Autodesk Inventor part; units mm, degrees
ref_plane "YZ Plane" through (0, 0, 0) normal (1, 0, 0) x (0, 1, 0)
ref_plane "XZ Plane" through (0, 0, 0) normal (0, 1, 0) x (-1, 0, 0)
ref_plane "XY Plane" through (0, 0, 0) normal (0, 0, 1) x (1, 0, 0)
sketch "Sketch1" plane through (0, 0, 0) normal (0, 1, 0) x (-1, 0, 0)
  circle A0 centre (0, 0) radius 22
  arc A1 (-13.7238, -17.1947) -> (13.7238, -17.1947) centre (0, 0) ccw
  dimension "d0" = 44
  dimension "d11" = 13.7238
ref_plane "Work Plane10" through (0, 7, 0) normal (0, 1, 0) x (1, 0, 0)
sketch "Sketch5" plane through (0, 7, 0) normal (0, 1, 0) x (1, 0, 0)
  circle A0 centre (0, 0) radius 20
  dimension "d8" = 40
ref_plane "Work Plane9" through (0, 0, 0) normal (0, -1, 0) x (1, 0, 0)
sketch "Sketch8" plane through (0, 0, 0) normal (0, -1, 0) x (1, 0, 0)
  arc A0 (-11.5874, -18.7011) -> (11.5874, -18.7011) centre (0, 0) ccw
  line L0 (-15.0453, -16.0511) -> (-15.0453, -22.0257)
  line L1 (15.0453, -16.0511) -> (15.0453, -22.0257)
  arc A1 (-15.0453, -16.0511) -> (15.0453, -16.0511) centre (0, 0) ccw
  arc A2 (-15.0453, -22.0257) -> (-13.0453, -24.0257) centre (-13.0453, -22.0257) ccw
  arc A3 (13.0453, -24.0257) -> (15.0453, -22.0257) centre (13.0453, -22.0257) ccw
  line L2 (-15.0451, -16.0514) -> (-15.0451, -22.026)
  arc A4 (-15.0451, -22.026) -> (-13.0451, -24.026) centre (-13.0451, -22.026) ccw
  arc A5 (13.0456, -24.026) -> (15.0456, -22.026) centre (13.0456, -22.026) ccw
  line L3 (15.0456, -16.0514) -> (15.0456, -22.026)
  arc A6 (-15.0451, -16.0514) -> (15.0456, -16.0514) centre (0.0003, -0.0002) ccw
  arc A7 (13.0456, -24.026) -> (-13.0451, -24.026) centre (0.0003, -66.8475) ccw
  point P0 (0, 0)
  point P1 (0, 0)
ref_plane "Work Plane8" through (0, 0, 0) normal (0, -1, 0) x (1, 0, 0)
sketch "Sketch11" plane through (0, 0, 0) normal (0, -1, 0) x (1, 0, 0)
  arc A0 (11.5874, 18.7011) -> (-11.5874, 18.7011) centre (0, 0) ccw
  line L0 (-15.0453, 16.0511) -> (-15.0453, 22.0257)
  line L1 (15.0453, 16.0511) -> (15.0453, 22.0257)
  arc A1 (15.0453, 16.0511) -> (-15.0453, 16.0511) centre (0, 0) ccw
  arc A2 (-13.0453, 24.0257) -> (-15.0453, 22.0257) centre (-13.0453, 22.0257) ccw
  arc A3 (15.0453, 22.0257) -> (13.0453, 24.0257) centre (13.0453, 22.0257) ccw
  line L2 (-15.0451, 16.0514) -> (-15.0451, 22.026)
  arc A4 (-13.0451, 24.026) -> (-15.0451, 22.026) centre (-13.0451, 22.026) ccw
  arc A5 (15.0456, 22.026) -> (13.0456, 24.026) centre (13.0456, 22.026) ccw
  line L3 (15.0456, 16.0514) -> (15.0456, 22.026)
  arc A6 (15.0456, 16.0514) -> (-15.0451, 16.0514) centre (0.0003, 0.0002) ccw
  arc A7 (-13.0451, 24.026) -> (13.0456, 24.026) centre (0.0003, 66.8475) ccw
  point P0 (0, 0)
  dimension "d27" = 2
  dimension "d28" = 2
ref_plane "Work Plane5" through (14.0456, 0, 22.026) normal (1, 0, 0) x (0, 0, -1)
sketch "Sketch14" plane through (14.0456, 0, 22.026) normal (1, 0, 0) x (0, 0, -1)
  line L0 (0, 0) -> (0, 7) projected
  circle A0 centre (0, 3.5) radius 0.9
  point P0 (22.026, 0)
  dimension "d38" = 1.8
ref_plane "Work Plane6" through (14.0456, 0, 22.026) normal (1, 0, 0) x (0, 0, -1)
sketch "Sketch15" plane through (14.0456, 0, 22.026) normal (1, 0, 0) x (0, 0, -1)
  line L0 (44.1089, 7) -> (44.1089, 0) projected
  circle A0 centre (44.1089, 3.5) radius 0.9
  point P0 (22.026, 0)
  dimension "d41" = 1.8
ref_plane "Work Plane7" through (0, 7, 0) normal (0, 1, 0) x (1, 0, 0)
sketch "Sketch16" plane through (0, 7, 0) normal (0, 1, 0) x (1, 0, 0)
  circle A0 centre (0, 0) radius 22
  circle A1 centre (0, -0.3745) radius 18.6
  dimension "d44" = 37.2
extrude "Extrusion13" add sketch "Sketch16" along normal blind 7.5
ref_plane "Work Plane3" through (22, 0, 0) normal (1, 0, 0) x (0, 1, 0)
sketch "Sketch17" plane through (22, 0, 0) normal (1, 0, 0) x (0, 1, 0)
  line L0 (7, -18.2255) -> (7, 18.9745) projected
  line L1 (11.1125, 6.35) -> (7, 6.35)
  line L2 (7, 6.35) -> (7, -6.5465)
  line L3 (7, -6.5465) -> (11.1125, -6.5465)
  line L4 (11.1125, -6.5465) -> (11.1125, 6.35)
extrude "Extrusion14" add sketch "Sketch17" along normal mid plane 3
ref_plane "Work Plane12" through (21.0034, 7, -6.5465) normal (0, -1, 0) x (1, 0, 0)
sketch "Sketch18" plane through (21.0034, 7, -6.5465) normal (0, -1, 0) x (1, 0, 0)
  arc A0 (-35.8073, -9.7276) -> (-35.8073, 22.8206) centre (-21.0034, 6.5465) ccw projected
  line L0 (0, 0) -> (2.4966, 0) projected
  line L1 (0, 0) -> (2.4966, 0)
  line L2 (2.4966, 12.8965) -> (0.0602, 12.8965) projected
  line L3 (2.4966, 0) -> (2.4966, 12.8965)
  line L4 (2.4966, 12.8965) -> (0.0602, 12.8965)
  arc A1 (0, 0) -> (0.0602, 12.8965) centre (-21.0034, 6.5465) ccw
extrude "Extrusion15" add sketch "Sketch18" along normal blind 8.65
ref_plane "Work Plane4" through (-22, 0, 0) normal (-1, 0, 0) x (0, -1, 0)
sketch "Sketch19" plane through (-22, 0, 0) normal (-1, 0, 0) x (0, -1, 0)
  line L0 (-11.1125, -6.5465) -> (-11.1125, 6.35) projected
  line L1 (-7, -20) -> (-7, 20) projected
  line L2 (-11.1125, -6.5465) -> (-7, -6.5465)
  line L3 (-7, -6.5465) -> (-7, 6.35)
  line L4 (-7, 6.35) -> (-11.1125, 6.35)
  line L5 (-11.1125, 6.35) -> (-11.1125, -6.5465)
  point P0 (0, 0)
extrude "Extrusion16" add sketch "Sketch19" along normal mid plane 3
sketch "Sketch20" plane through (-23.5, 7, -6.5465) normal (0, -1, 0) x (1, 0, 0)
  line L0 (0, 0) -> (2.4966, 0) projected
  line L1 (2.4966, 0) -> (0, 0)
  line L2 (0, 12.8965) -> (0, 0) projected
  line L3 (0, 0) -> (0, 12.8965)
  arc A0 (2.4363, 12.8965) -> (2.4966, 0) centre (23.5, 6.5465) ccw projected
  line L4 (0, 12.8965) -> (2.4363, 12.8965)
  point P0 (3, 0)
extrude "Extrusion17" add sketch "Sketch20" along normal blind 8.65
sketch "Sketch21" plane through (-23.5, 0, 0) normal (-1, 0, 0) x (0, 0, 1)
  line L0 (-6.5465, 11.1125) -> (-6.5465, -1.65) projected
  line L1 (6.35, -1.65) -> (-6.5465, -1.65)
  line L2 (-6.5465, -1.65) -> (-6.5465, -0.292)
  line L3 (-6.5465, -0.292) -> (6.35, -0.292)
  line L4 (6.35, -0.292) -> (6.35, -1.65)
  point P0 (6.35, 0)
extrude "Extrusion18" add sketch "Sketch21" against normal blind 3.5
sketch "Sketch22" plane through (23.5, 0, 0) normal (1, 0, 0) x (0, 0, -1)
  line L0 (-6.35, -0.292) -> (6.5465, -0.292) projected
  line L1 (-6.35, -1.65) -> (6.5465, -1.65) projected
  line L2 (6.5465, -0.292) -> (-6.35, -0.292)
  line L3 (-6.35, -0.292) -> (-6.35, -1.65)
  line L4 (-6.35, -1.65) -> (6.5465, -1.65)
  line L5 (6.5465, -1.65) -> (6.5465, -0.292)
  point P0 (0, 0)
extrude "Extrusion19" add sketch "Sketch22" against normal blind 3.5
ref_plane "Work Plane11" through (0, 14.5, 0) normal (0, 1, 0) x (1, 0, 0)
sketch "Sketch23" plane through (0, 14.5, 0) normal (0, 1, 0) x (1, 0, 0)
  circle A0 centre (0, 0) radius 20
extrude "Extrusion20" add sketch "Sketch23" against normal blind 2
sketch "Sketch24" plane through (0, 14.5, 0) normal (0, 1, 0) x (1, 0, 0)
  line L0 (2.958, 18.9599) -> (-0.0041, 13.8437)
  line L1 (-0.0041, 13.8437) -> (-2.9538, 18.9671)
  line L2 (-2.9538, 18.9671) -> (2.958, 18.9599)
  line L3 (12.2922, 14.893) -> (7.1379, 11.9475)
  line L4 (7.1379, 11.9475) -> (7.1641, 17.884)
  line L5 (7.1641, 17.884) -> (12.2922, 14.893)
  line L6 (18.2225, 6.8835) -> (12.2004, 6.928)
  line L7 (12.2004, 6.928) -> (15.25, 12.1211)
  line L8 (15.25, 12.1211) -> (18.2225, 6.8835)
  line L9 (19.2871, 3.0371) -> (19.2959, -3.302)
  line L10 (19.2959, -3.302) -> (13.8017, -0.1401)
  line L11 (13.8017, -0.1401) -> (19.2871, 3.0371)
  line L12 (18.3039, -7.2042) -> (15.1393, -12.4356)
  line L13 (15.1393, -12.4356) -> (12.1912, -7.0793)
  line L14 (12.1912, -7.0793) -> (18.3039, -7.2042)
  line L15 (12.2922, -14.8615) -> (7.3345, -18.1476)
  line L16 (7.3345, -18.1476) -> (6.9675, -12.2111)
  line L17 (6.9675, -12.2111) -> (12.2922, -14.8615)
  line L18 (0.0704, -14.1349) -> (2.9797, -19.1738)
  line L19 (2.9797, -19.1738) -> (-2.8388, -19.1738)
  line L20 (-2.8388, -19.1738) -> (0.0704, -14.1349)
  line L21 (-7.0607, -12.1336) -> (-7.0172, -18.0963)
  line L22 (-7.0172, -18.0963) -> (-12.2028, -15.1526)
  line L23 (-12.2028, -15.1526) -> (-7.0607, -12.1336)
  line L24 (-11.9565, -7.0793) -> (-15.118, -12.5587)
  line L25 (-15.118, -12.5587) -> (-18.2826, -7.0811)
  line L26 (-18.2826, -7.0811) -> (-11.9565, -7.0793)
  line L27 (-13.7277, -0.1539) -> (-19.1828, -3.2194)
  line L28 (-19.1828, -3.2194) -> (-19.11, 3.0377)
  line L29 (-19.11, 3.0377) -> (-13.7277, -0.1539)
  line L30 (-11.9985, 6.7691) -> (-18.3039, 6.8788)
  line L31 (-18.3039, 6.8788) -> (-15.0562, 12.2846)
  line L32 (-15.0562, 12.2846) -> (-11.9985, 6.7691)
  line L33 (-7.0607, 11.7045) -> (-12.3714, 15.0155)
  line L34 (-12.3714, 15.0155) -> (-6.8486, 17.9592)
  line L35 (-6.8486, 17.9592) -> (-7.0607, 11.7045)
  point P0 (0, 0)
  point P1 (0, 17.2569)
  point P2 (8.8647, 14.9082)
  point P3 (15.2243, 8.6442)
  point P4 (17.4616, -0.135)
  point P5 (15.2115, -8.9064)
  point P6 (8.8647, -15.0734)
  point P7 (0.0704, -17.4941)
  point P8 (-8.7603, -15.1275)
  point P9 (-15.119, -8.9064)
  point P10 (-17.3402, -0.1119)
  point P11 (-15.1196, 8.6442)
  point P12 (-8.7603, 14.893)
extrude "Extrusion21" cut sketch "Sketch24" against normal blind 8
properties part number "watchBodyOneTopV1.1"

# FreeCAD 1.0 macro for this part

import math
import FreeCAD as App
import Part
import Sketcher
from FreeCAD import Vector


def add_polygon(sketch, points):
    """Adds a closed chain of lines whose ends are joined by coincident constraints."""
    first, n = sketch.GeometryCount, len(points)
    for a, b in zip(points, points[1:] + points[:1]):
        sketch.addGeometry(Part.LineSegment(App.Vector(*a, 0), App.Vector(*b, 0)), False)
    for i in range(n):
        sketch.addConstraint(Sketcher.Constraint("Coincident", first + i, 2, first + (i + 1) % n, 1))

doc = App.newDocument("Part")
body = doc.addObject("PartDesign::Body", "Body")

# Sketch on XZ plane
sketch1 = body.newObject("Sketcher::SketchObject", "Sketch")
sketch1.AttachmentSupport = (doc.getObject("XZ_Plane"), [""])
sketch1.MapMode = "FlatFace"
sketch1.AttachmentOffset = App.Placement(Vector(0, 0, -7), App.Rotation())
sketch1.addGeometry([
    Part.Circle(Vector(0, 0, 0), Vector(0, 0, 1), 22),
    Part.Circle(Vector(0, 0, 0), Vector(0, 0, 1), 19),
], False)
sketch1.addConstraint([
    Sketcher.Constraint("Coincident", 0, 3, -1, 1),
    Sketcher.Constraint("PointOnObject", 1, 3, -2),
    Sketcher.Constraint("Diameter", 1, 37.2),
    Sketcher.Constraint("Diameter", 0, 44.0),
    Sketcher.Constraint("DistanceY", -1, 1, 1, 3, 0.3745),
])
pad1 = body.newObject("PartDesign::Pad", "Pad")
pad1.Profile = sketch1
pad1.Length = 7.5
pad1.Reversed = True

# Sketch on YZ plane
sketch2 = body.newObject("Sketcher::SketchObject", "Sketch001")
sketch2.AttachmentSupport = (doc.getObject("YZ_Plane"), [""])
sketch2.MapMode = "FlatFace"
sketch2.AttachmentOffset = App.Placement(Vector(0, 0, 22), App.Rotation())
add_polygon(sketch2, [(7, 6.3), (7, -6.5), (11.1, -6.5), (11.1, 6.3)])  # lines 0-3
sketch2.addConstraint([
    Sketcher.Constraint("Vertical", 0),
    Sketcher.Constraint("Horizontal", 1),
    Sketcher.Constraint("Vertical", 2),
    Sketcher.Constraint("Horizontal", 3),
    Sketcher.Constraint("DistanceX", -1, 1, 0, 2, 7.0),
    Sketcher.Constraint("DistanceY", -1, 1, 2, 2, 6.35),
    Sketcher.Constraint("DistanceX", 1, 1, 1, 2, 4.1125),
    Sketcher.Constraint("DistanceY", 0, 2, 0, 1, 12.8965),
])
pad2 = body.newObject("PartDesign::Pad", "Pad001")
pad2.Profile = sketch2
pad2.Length = 3
pad2.Midplane = True

# Sketch on XZ plane
sketch3 = body.newObject("Sketcher::SketchObject", "Sketch002")
sketch3.AttachmentSupport = (doc.getObject("XZ_Plane"), [""])
sketch3.MapMode = "FlatFace"
sketch3.AttachmentOffset = App.Placement(Vector(0, 0, -7), App.Rotation())
sketch3.addGeometry([
    Part.ArcOfCircle(Part.Circle(Vector(0, 0, 0), Vector(0, 0, 1), 22), math.radians(-17), math.radians(17)),
    Part.LineSegment(Vector(21, -6.5, 0), Vector(23.5, -6.5, 0)),
    Part.LineSegment(Vector(23.5, -6.5, 0), Vector(23.5, 6.3, 0)),
    Part.LineSegment(Vector(23.5, 6.3, 0), Vector(21.1, 6.3, 0)),
], False)
sketch3.addConstraint([
    Sketcher.Constraint("Coincident", 0, 1, 1, 1),
    Sketcher.Constraint("Coincident", 1, 2, 2, 1),
    Sketcher.Constraint("Coincident", 2, 2, 3, 1),
    Sketcher.Constraint("Coincident", 3, 2, 0, 2),
    Sketcher.Constraint("Horizontal", 1),
    Sketcher.Constraint("Vertical", 2),
    Sketcher.Constraint("Horizontal", 3),
    Sketcher.Constraint("Coincident", 0, 3, -1, 1),
    Sketcher.Constraint("Radius", 0, 22.0),
    Sketcher.Constraint("DistanceX", -1, 1, 1, 2, 23.5),
    Sketcher.Constraint("DistanceY", -1, 1, 2, 2, 6.35),
    Sketcher.Constraint("DistanceX", 1, 1, 1, 2, 2.4966),
])
pad3 = body.newObject("PartDesign::Pad", "Pad002")
pad3.Profile = sketch3
pad3.Length = 8.65

# Sketch on YZ plane
sketch4 = body.newObject("Sketcher::SketchObject", "Sketch003")
sketch4.AttachmentSupport = (doc.getObject("YZ_Plane"), [""])
sketch4.MapMode = "FlatFace"
sketch4.AttachmentOffset = App.Placement(Vector(0, 0, -22), App.Rotation())
add_polygon(sketch4, [(11.1, 6.3), (11.1, -6.5), (7, -6.5), (7, 6.3)])  # lines 0-3
sketch4.addConstraint([
    Sketcher.Constraint("Vertical", 0),
    Sketcher.Constraint("Horizontal", 1),
    Sketcher.Constraint("Vertical", 2),
    Sketcher.Constraint("Horizontal", 3),
    Sketcher.Constraint("DistanceX", -1, 1, 1, 2, 7.0),
    Sketcher.Constraint("DistanceY", -1, 1, 2, 2, 6.35),
    Sketcher.Constraint("DistanceX", 1, 2, 1, 1, 4.1125),
    Sketcher.Constraint("DistanceY", 0, 2, 0, 1, 12.8965),
])
pad4 = body.newObject("PartDesign::Pad", "Pad003")
pad4.Profile = sketch4
pad4.Length = 3
pad4.Midplane = True

# Sketch on XZ plane
sketch5 = body.newObject("Sketcher::SketchObject", "Sketch004")
sketch5.AttachmentSupport = (doc.getObject("XZ_Plane"), [""])
sketch5.MapMode = "FlatFace"
sketch5.AttachmentOffset = App.Placement(Vector(0, 0, -7), App.Rotation())
sketch5.addGeometry([
    Part.LineSegment(Vector(-23.5, 6.3, 0), Vector(-23.5, -6.5, 0)),
    Part.LineSegment(Vector(-23.5, -6.5, 0), Vector(-21, -6.5, 0)),
    Part.ArcOfCircle(Part.Circle(Vector(0, 0, 0), Vector(0, 0, 1), 22), math.radians(163), math.radians(197)),
    Part.LineSegment(Vector(-21.1, 6.3, 0), Vector(-23.5, 6.3, 0)),
], False)
sketch5.addConstraint([
    Sketcher.Constraint("Coincident", 0, 2, 1, 1),
    Sketcher.Constraint("Coincident", 1, 2, 2, 2),
    Sketcher.Constraint("Coincident", 2, 1, 3, 1),
    Sketcher.Constraint("Coincident", 3, 2, 0, 1),
    Sketcher.Constraint("Vertical", 0),
    Sketcher.Constraint("Horizontal", 1),
    Sketcher.Constraint("Horizontal", 3),
    Sketcher.Constraint("Coincident", 2, 3, -1, 1),
    Sketcher.Constraint("Radius", 2, 22.0),
    Sketcher.Constraint("DistanceX", 0, 2, -1, 1, 23.5),
    Sketcher.Constraint("DistanceY", -1, 1, 2, 1, 6.35),
    Sketcher.Constraint("DistanceX", 1, 1, 1, 2, 2.4966),
])
pad5 = body.newObject("PartDesign::Pad", "Pad004")
pad5.Profile = sketch5
pad5.Length = 8.65

# Sketch on YZ plane
sketch6 = body.newObject("Sketcher::SketchObject", "Sketch005")
sketch6.AttachmentSupport = (doc.getObject("YZ_Plane"), [""])
sketch6.MapMode = "FlatFace"
sketch6.AttachmentOffset = App.Placement(Vector(0, 0, -23.5), App.Rotation())
add_polygon(sketch6, [(-0.3, 6.3), (-0.3, -6.5), (-1.6, -6.5), (-1.6, 6.3)])  # lines 0-3
sketch6.addConstraint([
    Sketcher.Constraint("Vertical", 0),
    Sketcher.Constraint("Horizontal", 1),
    Sketcher.Constraint("Vertical", 2),
    Sketcher.Constraint("Horizontal", 3),
    Sketcher.Constraint("DistanceX", 1, 2, 1, 1, 1.358),
    Sketcher.Constraint("DistanceX", 1, 2, -1, 1, 1.65),
    Sketcher.Constraint("DistanceY", -1, 1, 2, 2, 6.35),
    Sketcher.Constraint("DistanceY", 0, 2, 0, 1, 12.8965),
])
pad6 = body.newObject("PartDesign::Pad", "Pad005")
pad6.Profile = sketch6
pad6.Length = 3.5

# Sketch on YZ plane
sketch7 = body.newObject("Sketcher::SketchObject", "Sketch006")
sketch7.AttachmentSupport = (doc.getObject("YZ_Plane"), [""])
sketch7.MapMode = "FlatFace"
sketch7.AttachmentOffset = App.Placement(Vector(0, 0, 23.5), App.Rotation())
add_polygon(sketch7, [(-0.3, -6.5), (-0.3, 6.3), (-1.6, 6.3), (-1.6, -6.5)])  # lines 0-3
sketch7.addConstraint([
    Sketcher.Constraint("Vertical", 0),
    Sketcher.Constraint("Horizontal", 1),
    Sketcher.Constraint("Vertical", 2),
    Sketcher.Constraint("Horizontal", 3),
    Sketcher.Constraint("DistanceX", 1, 2, 1, 1, 1.358),
    Sketcher.Constraint("DistanceY", -1, 1, 0, 2, 6.35),
    Sketcher.Constraint("DistanceX", 1, 2, -1, 1, 1.65),
    Sketcher.Constraint("DistanceY", 0, 1, 0, 2, 12.8965),
])
pad7 = body.newObject("PartDesign::Pad", "Pad006")
pad7.Profile = sketch7
pad7.Length = 3.5
pad7.Reversed = True

# Sketch on XZ plane
sketch8 = body.newObject("Sketcher::SketchObject", "Sketch007")
sketch8.AttachmentSupport = (doc.getObject("XZ_Plane"), [""])
sketch8.MapMode = "FlatFace"
sketch8.AttachmentOffset = App.Placement(Vector(0, 0, -14.5), App.Rotation())
sketch8.addGeometry(Part.Circle(Vector(0, 0, 0), Vector(0, 0, 1), 20), False)
sketch8.addConstraint([
    Sketcher.Constraint("Coincident", 0, 3, -1, 1),
    Sketcher.Constraint("Diameter", 0, 40.0),
])
pad8 = body.newObject("PartDesign::Pad", "Pad007")
pad8.Profile = sketch8
pad8.Length = 2

# Sketch on XZ plane
sketch9 = body.newObject("Sketcher::SketchObject", "Sketch008")
sketch9.AttachmentSupport = (doc.getObject("XZ_Plane"), [""])
sketch9.MapMode = "FlatFace"
sketch9.AttachmentOffset = App.Placement(Vector(0, 0, -14.5), App.Rotation())
add_polygon(sketch9, [(-0.0041, -13.8437), (2.958, -18.9599), (-2.9538, -18.9671)])  # lines 0-2
add_polygon(sketch9, [(7.1379, -11.9475), (12.2922, -14.893), (7.1641, -17.884)])  # lines 3-5
add_polygon(sketch9, [(12.2004, -6.928), (18.2225, -6.8835), (15.25, -12.1211)])  # lines 6-8
add_polygon(sketch9, [(19.2959, 3.302), (19.2871, -3.0371), (13.8017, 0.1401)])  # lines 9-11
add_polygon(sketch9, [(15.1393, 12.4356), (18.3039, 7.2042), (12.1912, 7.0793)])  # lines 12-14
add_polygon(sketch9, [(7.3345, 18.1476), (12.2922, 14.8615), (6.9675, 12.2111)])  # lines 15-17
add_polygon(sketch9, [(2.9797, 19.1738), (0.0704, 14.1349), (-2.8388, 19.1738)])  # lines 18-20
add_polygon(sketch9, [(-7.0172, 18.0963), (-7.0607, 12.1336), (-12.2028, 15.1526)])  # lines 21-23
add_polygon(sketch9, [(-15.118, 12.5587), (-11.9565, 7.0793), (-18.2826, 7.0811)])  # lines 24-26
add_polygon(sketch9, [(-19.1828, 3.2194), (-13.7277, 0.1539), (-19.11, -3.0377)])  # lines 27-29
add_polygon(sketch9, [(-18.3039, -6.8788), (-11.9985, -6.7691), (-15.0562, -12.2846)])  # lines 30-32
add_polygon(sketch9, [(-12.3714, -15.0155), (-7.0607, -11.7045), (-6.8486, -17.9592)])  # lines 33-35
sketch9.addConstraint([
    Sketcher.Constraint("Horizontal", 20),
    Sketcher.Constraint("DistanceY", 0, 2, -1, 1, 18.96),
    Sketcher.Constraint("DistanceX", -1, 1, 7, 2, 15.25),
    Sketcher.Constraint("DistanceY", -1, 1, 10, 2, 0.14),
    Sketcher.Constraint("DistanceX", 28, 2, -1, 1, 19.11),
    Sketcher.Constraint("DistanceX", 0, 2, 5, 2, 4.18),
    Sketcher.Constraint("DistanceY", 8, 2, 11, 2, 10.23),
    Sketcher.Constraint("DistanceY", 29, 2, 24, 2, 3.86),
    Sketcher.Constraint("DistanceY", 31, 2, 33, 2, 0.58),
    Sketcher.Constraint("Distance", 9, 6.339),
    Sketcher.Constraint("Distance", 10, 6.339),
    Sketcher.Constraint("Distance", 11, 6.339),
    Sketcher.Constraint("Distance", 12, 6.114),
    Sketcher.Constraint("Distance", 13, 6.114),
    Sketcher.Constraint("Distance", 14, 6.114),
    Sketcher.Constraint("Distance", 24, 6.326),
    Sketcher.Constraint("Distance", 25, 6.326),
    Sketcher.Constraint("Distance", 26, 6.326),
    Sketcher.Constraint("DistanceX", 20, 1, 20, 2, 5.8185),
    Sketcher.Constraint("DistanceX", -1, 1, 0, 2, 2.958),
    Sketcher.Constraint("DistanceY", 1, 2, -1, 1, 18.967),
    Sketcher.Constraint("DistanceX", 2, 2, -1, 1, 0.004),
    Sketcher.Constraint("DistanceY", 3, 2, -1, 1, 14.893),
    Sketcher.Constraint("DistanceX", -1, 1, 4, 2, 7.164),
    Sketcher.Constraint("DistanceY", 4, 2, -1, 1, 17.884),
    Sketcher.Constraint("DistanceY", 7, 2, -1, 1, 12.121),
    Sketcher.Constraint("DistanceY", 8, 2, -1, 1, 6.928),
    Sketcher.Constraint("DistanceX", -1, 1, 9, 2, 19.287),
    Sketcher.Constraint("DistanceX", -1, 1, 12, 2, 18.304),
    Sketcher.Constraint("DistanceY", -1, 1, 16, 2, 12.211),
    Sketcher.Constraint("DistanceY", -1, 1, 18, 2, 14.135),
    Sketcher.Constraint("DistanceY", -1, 1, 25, 2, 7.081),
    Sketcher.Constraint("DistanceX", 26, 2, -1, 1, 15.118),
    Sketcher.Constraint("DistanceY", -1, 1, 27, 2, 0.154),
    Sketcher.Constraint("DistanceY", 30, 2, -1, 1, 6.769),
    Sketcher.Constraint("DistanceX", 32, 2, -1, 1, 18.304),
    Sketcher.Constraint("DistanceX", 1, 2, 3, 2, 15.246),
    Sketcher.Constraint("DistanceX", 4, 2, 3, 2, 5.128),
    Sketcher.Constraint("DistanceY", 5, 2, 6, 2, 5.064),
    Sketcher.Constraint("DistanceX", 8, 2, 6, 2, 6.022),
    Sketcher.Constraint("DistanceY", 10, 2, 12, 2, 7.064),
    Sketcher.Constraint("DistanceY", 13, 2, 12, 2, 0.125),
    Sketcher.Constraint("DistanceX", 15, 2, 14, 2, 2.847),
    Sketcher.Constraint("DistanceY", 14, 2, 15, 2, 2.426),
    Sketcher.Constraint("DistanceX", 16, 2, 17, 2, 0.367),
    Sketcher.Constraint("DistanceY", 15, 2, 17, 2, 3.286),
    Sketcher.Constraint("DistanceX", 18, 2, 16, 2, 6.897),
    Sketcher.Constraint("DistanceX", 18, 2, 14, 2, 15.069),
    Sketcher.Constraint("DistanceY", 18, 2, 19, 2, 5.039),
    Sketcher.Constraint("DistanceX", 19, 2, 15, 2, 15.131),
    Sketcher.Constraint("DistanceX", 21, 2, 18, 2, 7.131),
    Sketcher.Constraint("DistanceY", 21, 2, 17, 2, 6.014),
    Sketcher.Constraint("DistanceX", 22, 2, 21, 2, 5.142),
    Sketcher.Constraint("DistanceY", 21, 2, 22, 2, 3.019),
    Sketcher.Constraint("DistanceX", 23, 2, 20, 2, 9.997),
    Sketcher.Constraint("DistanceY", 24, 2, 23, 2, 11.017),
    Sketcher.Constraint("DistanceX", 24, 2, 18, 2, 12.027),
    Sketcher.Constraint("DistanceX", 25, 2, 27, 2, 4.555),
    Sketcher.Constraint("DistanceY", 28, 2, 24, 2, 10.117),
    Sketcher.Constraint("DistanceX", 29, 2, 27, 2, 5.455),
    Sketcher.Constraint("DistanceX", 30, 2, 24, 2, 0.042),
    Sketcher.Constraint("DistanceY", 31, 2, 28, 2, 9.247),
    Sketcher.Constraint("DistanceX", 31, 2, 2, 2, 15.052),
    Sketcher.Constraint("DistanceY", 2, 2, 31, 2, 1.559),
    Sketcher.Constraint("DistanceY", 32, 2, 28, 2, 3.841),
    Sketcher.Constraint("DistanceX", 33, 2, 1, 2, 4.107),
    Sketcher.Constraint("DistanceY", 1, 2, 34, 2, 1.008),
    Sketcher.Constraint("DistanceX", 33, 2, 34, 2, 0.212),
    Sketcher.Constraint("DistanceY", 35, 2, 31, 2, 2.731),
    Sketcher.Constraint("DistanceX", 35, 2, 30, 2, 0.373),
    Sketcher.Constraint("Distance", 3, 5.9366),
    Sketcher.Constraint("Distance", 7, 6.0223),
])
pocket1 = body.newObject("PartDesign::Pocket", "Pocket")
pocket1.Profile = sketch9
pocket1.Length = 8
pocket1.Reversed = True

doc.recompute()
